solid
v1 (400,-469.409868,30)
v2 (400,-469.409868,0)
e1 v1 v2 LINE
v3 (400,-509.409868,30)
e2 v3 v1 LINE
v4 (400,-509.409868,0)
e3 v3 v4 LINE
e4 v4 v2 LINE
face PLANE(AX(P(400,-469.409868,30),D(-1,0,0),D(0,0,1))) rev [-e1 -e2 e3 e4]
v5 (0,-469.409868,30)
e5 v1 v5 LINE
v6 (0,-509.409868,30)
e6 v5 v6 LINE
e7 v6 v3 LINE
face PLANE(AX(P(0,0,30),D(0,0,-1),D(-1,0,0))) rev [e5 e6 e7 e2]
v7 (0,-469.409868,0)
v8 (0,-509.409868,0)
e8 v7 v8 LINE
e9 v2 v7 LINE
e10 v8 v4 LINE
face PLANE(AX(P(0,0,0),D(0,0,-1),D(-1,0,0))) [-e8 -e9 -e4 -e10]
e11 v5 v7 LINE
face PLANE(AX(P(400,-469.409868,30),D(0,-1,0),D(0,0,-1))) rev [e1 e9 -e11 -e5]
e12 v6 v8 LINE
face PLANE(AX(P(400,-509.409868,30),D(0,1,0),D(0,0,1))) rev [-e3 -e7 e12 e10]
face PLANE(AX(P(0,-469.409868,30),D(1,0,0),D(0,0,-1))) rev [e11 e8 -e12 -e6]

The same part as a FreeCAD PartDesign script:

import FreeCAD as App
import Part
import Sketcher

V = App.Vector

doc = App.newDocument("Part")
body = doc.addObject("PartDesign::Body", "Body")

sketch1 = body.newObject("Sketcher::SketchObject", "Sketch")
sketch1.AttachmentSupport = (doc.getObject("XY_Plane"), [""])
sketch1.MapMode = "FlatFace"
sketch1.addGeometry([
    Part.LineSegment(V(0, -469, 0), V(0, -509, 0)),
    Part.LineSegment(V(0, -509, 0), V(400, -509, 0)),
    Part.LineSegment(V(400, -509, 0), V(400, -469, 0)),
    Part.LineSegment(V(400, -469, 0), V(0, -469, 0)),
], False)
sketch1.addConstraint([
    Sketcher.Constraint("Coincident", 0, 2, 1, 1),
    Sketcher.Constraint("Coincident", 1, 2, 2, 1),
    Sketcher.Constraint("Coincident", 2, 2, 3, 1),
    Sketcher.Constraint("Coincident", 3, 2, 0, 1),
    Sketcher.Constraint("Vertical", 0),
    Sketcher.Constraint("Horizontal", 1),
    Sketcher.Constraint("Vertical", 2),
    Sketcher.Constraint("Horizontal", 3),
    Sketcher.Constraint("PointOnObject", 0, 2, -2),
    Sketcher.Constraint("DistanceX", 1, 1, 1, 2, 400.0),
    Sketcher.Constraint("DistanceY", 0, 2, 0, 1, 40.0),
    Sketcher.Constraint("DistanceY", 0, 2, -1, 1, 509.409868),
])
pad1 = body.newObject("PartDesign::Pad", "Pad")
pad1.Profile = sketch1
pad1.Length = 30

doc.recompute()
